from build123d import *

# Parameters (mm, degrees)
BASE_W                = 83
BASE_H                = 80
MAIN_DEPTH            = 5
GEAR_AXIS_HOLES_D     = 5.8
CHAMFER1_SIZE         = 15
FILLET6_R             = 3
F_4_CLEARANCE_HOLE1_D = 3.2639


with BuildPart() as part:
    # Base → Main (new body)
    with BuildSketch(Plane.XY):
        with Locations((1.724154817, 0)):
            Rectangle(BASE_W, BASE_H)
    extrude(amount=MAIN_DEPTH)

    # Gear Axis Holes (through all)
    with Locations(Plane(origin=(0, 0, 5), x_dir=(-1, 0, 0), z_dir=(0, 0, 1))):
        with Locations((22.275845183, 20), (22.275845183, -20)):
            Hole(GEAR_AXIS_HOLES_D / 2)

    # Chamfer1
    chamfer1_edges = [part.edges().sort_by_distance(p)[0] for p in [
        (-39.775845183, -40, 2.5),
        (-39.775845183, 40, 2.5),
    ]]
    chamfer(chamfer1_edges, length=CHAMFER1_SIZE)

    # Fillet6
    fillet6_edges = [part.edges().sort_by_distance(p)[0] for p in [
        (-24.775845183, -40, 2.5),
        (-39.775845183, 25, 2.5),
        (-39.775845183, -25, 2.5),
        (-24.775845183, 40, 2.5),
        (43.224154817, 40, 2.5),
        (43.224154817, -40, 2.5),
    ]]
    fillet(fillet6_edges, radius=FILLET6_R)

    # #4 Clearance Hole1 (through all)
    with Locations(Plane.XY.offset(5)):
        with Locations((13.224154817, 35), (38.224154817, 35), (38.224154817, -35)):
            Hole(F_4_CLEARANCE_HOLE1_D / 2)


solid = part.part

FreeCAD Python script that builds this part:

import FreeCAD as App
import Part
import Sketcher
Q = App.Units.Quantity


def edges_at(feature, points):
    """Names of the edges that pass closest to the given points."""
    edges = feature.Shape.Edges
    near = lambda p: min(range(len(edges)), key=lambda i: edges[i].distToShape(Part.Vertex(*p))[0])
    return sorted({f"Edge{near(p) + 1}" for p in points})

doc = App.newDocument("Part")
body = doc.addObject("PartDesign::Body", "Body")

# Sketch on XY plane
sketch1 = body.newObject("Sketcher::SketchObject", "Sketch")
sketch1.AttachmentSupport = (doc.getObject("XY_Plane"), [""])
sketch1.MapMode = "FlatFace"
sketch1.addGeometry(Part.LineSegment(App.Vector(-39.775845, 40, 0), App.Vector(-39.775845, -40, 0)), False)
sketch1.addGeometry(Part.LineSegment(App.Vector(-39.775845, -40, 0), App.Vector(43.224155, -40, 0)), False)
sketch1.addGeometry(Part.LineSegment(App.Vector(43.224155, -40, 0), App.Vector(43.224155, 40, 0)), False)
sketch1.addGeometry(Part.LineSegment(App.Vector(43.224155, 40, 0), App.Vector(-39.775845, 40, 0)), False)
sketch1.addConstraint(Sketcher.Constraint("Coincident", 0, 2, 1, 1))
sketch1.addConstraint(Sketcher.Constraint("Coincident", 1, 2, 2, 1))
sketch1.addConstraint(Sketcher.Constraint("Coincident", 2, 2, 3, 1))
sketch1.addConstraint(Sketcher.Constraint("Coincident", 3, 2, 0, 1))
sketch1.addConstraint(Sketcher.Constraint("Vertical", 0))
sketch1.addConstraint(Sketcher.Constraint("Horizontal", 1))
sketch1.addConstraint(Sketcher.Constraint("Vertical", 2))
sketch1.addConstraint(Sketcher.Constraint("Horizontal", 3))
sketch1.addConstraint(Sketcher.Constraint("DistanceX", 1, 1, 1, 2, Q("83 mm")))
sketch1.addConstraint(Sketcher.Constraint("DistanceY", 0, 2, 0, 1, Q("80 mm")))
sketch1.addConstraint(Sketcher.Constraint("DistanceY", 0, 2, -1, 1, Q("40 mm")))
sketch1.addConstraint(Sketcher.Constraint("DistanceX", 0, 2, -1, 1, Q("39.775845 mm")))
pad1 = body.newObject("PartDesign::Pad", "Pad")
pad1.Profile = sketch1
pad1.Length = 5

# Sketch on XY plane
sketch2 = body.newObject("Sketcher::SketchObject", "Sketch001")
sketch2.AttachmentSupport = (doc.getObject("XY_Plane"), [""])
sketch2.MapMode = "FlatFace"
sketch2.AttachmentOffset = App.Placement(App.Vector(0, 0, 5), App.Rotation())
sketch2.addGeometry(Part.Circle(App.Vector(-22.275845, -20, 0), App.Vector(0, 0, 1), 2.9), False)
sketch2.addGeometry(Part.Circle(App.Vector(-22.275845, 20, 0), App.Vector(0, 0, 1), 2.9), False)
sketch2.addConstraint(Sketcher.Constraint("Equal", 0, 1))
sketch2.addConstraint(Sketcher.Constraint("Symmetric", 0, 3, 1, 3, -1))
sketch2.addConstraint(Sketcher.Constraint("Diameter", 0, Q("5.8 mm")))
sketch2.addConstraint(Sketcher.Constraint("DistanceY", 0, 3, -1, 1, Q("20 mm")))
sketch2.addConstraint(Sketcher.Constraint("DistanceX", 0, 3, -1, 1, Q("22.275845 mm")))
doc.recompute()
hole = body.newObject("PartDesign::Hole", "Hole")
hole.Profile = sketch2
hole.ThreadType = "None"
hole.Diameter = 5.8
hole.DepthType = "ThroughAll"
doc.recompute()

chamfer = body.newObject("PartDesign::Chamfer", "Chamfer")
chamfer.Base = (hole, edges_at(hole, [(-39.776, -40, 2.5), (-39.776, 40, 2.5)]))
chamfer.Size = 15
doc.recompute()

fillet = body.newObject("PartDesign::Fillet", "Fillet")
fillet.Base = (chamfer, edges_at(chamfer, [
    (-24.776, -40, 2.5),
    (-39.776, 25, 2.5),
    (-39.776, -25, 2.5),
    (-24.776, 40, 2.5),
    (43.224, 40, 2.5),
    (43.224, -40, 2.5),
]))
fillet.Radius = 3

# Sketch on XY plane
sketch3 = body.newObject("Sketcher::SketchObject", "Sketch002")
sketch3.AttachmentSupport = (doc.getObject("XY_Plane"), [""])
sketch3.MapMode = "FlatFace"
sketch3.AttachmentOffset = App.Placement(App.Vector(0, 0, 5), App.Rotation())
sketch3.addGeometry(Part.Circle(App.Vector(13.224155, 35, 0), App.Vector(0, 0, 1), 1.63195), False)
sketch3.addGeometry(Part.Circle(App.Vector(38.224155, 35, 0), App.Vector(0, 0, 1), 1.63195), False)
sketch3.addGeometry(Part.Circle(App.Vector(38.224155, -35, 0), App.Vector(0, 0, 1), 1.63195), False)
sketch3.addConstraint(Sketcher.Constraint("Equal", 0, 1))
sketch3.addConstraint(Sketcher.Constraint("Equal", 1, 2))
sketch3.addConstraint(Sketcher.Constraint("Symmetric", 1, 3, 2, 3, -1))
sketch3.addConstraint(Sketcher.Constraint("Horizontal", 0, 3, 1, 3))
sketch3.addConstraint(Sketcher.Constraint("DistanceY", -1, 1, 0, 3, Q("35 mm")))
sketch3.addConstraint(Sketcher.Constraint("DistanceX", 0, 3, 1, 3, Q("25 mm")))
sketch3.addConstraint(Sketcher.Constraint("Diameter", 0, Q("3.2639 mm")))
sketch3.addConstraint(Sketcher.Constraint("DistanceX", -1, 1, 0, 3, Q("13.224155 mm")))
doc.recompute()
hole2 = body.newObject("PartDesign::Hole", "Hole001")
hole2.Profile = sketch3
hole2.ThreadType = "None"
hole2.Diameter = 3.2639
hole2.DepthType = "ThroughAll"

doc.recompute()
